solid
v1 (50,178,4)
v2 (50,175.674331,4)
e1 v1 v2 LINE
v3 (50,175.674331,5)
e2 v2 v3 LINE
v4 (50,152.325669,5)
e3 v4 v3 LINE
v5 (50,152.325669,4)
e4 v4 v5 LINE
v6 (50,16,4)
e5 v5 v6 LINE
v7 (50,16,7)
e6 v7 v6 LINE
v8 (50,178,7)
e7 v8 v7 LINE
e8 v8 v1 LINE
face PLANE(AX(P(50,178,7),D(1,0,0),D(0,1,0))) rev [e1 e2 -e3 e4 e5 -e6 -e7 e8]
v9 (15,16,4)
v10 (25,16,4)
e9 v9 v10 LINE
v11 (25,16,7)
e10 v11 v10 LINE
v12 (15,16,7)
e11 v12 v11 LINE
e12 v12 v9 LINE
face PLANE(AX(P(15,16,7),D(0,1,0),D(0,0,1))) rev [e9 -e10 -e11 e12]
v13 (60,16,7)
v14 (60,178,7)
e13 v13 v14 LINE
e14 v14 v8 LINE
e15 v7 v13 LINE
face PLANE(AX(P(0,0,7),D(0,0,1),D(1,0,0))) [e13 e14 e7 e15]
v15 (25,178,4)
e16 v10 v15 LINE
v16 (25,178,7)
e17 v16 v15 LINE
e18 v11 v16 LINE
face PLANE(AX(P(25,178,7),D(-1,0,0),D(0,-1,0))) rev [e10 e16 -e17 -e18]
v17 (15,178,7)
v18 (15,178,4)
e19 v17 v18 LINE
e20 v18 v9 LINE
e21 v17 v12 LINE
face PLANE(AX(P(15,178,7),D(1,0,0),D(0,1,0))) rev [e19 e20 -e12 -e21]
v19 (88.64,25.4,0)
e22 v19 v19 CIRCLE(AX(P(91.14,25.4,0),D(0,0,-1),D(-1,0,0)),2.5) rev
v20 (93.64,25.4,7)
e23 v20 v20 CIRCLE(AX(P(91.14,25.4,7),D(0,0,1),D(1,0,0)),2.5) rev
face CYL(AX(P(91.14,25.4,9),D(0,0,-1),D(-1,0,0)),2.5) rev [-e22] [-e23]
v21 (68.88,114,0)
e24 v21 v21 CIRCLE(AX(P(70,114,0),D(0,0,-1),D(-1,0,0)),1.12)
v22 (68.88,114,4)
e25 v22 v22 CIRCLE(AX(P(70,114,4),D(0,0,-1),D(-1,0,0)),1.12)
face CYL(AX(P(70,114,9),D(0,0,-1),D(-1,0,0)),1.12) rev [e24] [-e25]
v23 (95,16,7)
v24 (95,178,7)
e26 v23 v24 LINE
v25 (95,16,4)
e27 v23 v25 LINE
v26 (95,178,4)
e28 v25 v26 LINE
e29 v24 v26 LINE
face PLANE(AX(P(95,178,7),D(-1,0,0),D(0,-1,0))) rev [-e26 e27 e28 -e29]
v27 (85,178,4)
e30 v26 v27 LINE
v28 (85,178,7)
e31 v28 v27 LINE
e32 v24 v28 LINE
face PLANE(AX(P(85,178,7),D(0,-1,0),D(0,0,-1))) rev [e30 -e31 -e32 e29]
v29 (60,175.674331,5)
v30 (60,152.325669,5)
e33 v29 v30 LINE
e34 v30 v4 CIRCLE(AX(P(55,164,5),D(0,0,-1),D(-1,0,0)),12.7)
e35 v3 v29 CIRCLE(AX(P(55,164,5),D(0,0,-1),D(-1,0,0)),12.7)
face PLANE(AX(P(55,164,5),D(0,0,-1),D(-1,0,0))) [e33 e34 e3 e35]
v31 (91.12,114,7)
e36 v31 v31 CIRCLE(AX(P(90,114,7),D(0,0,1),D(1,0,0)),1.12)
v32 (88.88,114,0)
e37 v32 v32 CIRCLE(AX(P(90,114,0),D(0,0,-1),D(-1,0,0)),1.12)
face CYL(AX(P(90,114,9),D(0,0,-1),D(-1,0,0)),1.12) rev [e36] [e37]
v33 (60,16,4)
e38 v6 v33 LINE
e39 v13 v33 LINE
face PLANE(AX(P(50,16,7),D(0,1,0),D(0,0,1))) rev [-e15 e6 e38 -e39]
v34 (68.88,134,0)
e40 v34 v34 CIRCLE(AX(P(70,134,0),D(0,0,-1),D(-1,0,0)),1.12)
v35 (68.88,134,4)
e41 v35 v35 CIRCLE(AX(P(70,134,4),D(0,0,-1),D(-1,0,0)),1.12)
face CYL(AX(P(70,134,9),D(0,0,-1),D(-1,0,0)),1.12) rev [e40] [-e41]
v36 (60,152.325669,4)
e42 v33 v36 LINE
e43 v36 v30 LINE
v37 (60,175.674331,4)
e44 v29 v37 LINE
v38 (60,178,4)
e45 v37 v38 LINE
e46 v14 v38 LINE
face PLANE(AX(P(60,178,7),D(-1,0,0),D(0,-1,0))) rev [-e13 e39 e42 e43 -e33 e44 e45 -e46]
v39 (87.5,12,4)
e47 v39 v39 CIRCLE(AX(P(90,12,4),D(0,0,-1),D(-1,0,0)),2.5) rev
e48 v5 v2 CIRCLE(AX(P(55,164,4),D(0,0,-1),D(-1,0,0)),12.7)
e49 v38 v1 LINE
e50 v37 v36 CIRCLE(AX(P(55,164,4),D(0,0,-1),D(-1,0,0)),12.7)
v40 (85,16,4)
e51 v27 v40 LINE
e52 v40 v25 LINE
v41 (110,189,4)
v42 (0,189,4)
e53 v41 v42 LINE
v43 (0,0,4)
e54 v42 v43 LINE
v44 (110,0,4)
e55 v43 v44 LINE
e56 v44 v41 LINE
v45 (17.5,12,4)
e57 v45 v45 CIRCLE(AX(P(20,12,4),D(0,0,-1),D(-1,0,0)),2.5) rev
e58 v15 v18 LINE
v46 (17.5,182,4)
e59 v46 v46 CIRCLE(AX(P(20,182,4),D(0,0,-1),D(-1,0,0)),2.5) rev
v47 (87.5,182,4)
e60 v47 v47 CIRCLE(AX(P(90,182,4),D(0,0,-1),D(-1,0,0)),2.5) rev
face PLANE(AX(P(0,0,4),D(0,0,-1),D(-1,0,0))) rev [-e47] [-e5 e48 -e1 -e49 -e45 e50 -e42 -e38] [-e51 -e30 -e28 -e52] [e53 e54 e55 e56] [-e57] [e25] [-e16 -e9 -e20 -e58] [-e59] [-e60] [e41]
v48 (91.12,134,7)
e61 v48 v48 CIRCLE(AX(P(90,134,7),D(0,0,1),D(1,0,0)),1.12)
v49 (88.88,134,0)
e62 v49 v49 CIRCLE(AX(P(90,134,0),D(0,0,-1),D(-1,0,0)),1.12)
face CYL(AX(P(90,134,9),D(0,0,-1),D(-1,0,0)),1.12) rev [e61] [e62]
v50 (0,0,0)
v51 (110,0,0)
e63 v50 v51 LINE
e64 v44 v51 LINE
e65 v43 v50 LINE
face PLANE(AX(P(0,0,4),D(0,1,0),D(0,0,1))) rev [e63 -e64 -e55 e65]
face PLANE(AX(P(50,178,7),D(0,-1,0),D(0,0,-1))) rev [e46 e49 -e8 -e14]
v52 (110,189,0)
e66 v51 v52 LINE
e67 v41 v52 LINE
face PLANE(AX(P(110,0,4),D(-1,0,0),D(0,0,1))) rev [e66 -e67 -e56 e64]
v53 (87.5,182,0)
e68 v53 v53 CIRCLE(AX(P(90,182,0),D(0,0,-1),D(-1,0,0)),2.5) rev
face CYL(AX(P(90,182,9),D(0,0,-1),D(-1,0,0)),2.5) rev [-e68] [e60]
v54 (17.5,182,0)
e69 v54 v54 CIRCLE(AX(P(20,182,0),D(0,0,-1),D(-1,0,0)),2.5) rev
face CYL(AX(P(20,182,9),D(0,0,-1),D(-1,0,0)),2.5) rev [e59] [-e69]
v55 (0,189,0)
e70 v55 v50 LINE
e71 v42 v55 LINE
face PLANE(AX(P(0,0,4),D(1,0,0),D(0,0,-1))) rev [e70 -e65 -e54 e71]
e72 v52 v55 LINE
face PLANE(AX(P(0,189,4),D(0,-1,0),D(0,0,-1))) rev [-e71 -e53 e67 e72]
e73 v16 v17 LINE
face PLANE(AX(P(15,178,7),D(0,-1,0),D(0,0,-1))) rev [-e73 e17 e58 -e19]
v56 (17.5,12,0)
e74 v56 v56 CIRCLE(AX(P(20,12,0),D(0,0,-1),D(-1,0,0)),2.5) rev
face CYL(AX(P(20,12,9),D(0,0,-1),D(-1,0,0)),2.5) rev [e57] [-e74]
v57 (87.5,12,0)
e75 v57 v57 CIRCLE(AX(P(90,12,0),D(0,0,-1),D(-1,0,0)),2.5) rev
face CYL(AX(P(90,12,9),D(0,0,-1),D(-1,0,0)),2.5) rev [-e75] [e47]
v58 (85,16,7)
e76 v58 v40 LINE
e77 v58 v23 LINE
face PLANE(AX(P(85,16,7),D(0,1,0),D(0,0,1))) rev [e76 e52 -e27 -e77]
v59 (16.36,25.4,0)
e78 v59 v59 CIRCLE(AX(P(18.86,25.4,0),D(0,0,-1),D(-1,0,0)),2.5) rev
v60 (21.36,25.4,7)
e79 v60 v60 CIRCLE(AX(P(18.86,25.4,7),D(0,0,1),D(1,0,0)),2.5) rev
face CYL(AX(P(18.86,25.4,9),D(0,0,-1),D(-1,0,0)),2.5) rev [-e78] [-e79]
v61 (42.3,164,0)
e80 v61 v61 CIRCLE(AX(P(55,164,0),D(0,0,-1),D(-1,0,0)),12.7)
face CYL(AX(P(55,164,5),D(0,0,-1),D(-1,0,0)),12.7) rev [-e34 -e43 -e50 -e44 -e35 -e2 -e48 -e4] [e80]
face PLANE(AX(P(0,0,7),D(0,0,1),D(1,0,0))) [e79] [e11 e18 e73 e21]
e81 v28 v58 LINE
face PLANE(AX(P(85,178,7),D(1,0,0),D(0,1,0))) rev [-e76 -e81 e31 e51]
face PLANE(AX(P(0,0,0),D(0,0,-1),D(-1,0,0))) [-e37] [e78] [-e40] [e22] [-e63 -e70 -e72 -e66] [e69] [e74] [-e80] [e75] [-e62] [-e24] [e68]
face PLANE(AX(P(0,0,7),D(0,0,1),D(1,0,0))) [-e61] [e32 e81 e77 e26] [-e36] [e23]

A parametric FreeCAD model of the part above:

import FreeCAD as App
import Part
import Sketcher
from FreeCAD import Vector
Q = App.Units.Quantity

doc = App.newDocument("Part")
body = doc.addObject("PartDesign::Body", "Body")

# Sketch on XY plane
sketch1 = doc.addObject("Sketcher::SketchObject", "Sketch")
body.addObject(sketch1)
sketch1.AttachmentSupport = (doc.XY_Plane, [""])
sketch1.MapMode = "FlatFace"
sketch1.addGeometry([
    Part.LineSegment(Vector(0, 189, 0), Vector(0, 0, 0)),
    Part.LineSegment(Vector(0, 0, 0), Vector(110, 0, 0)),
    Part.LineSegment(Vector(110, 0, 0), Vector(110, 189, 0)),
    Part.LineSegment(Vector(110, 189, 0), Vector(0, 189, 0)),
], False)
sketch1.addConstraint([
    Sketcher.Constraint("Coincident", 0, 2, 1, 1),
    Sketcher.Constraint("Coincident", 1, 2, 2, 1),
    Sketcher.Constraint("Coincident", 2, 2, 3, 1),
    Sketcher.Constraint("Coincident", 3, 2, 0, 1),
    Sketcher.Constraint("Vertical", 0),
    Sketcher.Constraint("Horizontal", 1),
    Sketcher.Constraint("Vertical", 2),
    Sketcher.Constraint("Horizontal", 3),
    Sketcher.Constraint("Coincident", 0, 2, -1, 1),
    Sketcher.Constraint("DistanceX", 1, 1, 1, 2, Q("110 mm")),
    Sketcher.Constraint("DistanceY", 0, 2, 0, 1, Q("189 mm")),
])
pad1 = doc.addObject("PartDesign::Pad", "Pad")
body.addObject(pad1)
pad1.Profile = sketch1
pad1.Length = 4

# Sketch on XY plane
sketch2 = doc.addObject("Sketcher::SketchObject", "Sketch001")
body.addObject(sketch2)
sketch2.AttachmentSupport = (doc.XY_Plane, [""])
sketch2.MapMode = "FlatFace"
sketch2.AttachmentOffset = App.Placement(Vector(0, 0, 4), App.Rotation())
sketch2.addGeometry([
    Part.LineSegment(Vector(50, 178, 0), Vector(50, 16, 0)),  # 0
    Part.LineSegment(Vector(50, 16, 0), Vector(60, 16, 0)),  # 1
    Part.LineSegment(Vector(60, 16, 0), Vector(60, 178, 0)),  # 2
    Part.LineSegment(Vector(60, 178, 0), Vector(50, 178, 0)),  # 3
    Part.LineSegment(Vector(15, 178, 0), Vector(15, 16, 0)),  # 4
    Part.LineSegment(Vector(15, 16, 0), Vector(25, 16, 0)),  # 5
    Part.LineSegment(Vector(25, 16, 0), Vector(25, 178, 0)),  # 6
    Part.LineSegment(Vector(25, 178, 0), Vector(15, 178, 0)),  # 7
    Part.LineSegment(Vector(85, 178, 0), Vector(85, 16, 0)),  # 8
    Part.LineSegment(Vector(85, 16, 0), Vector(95, 16, 0)),  # 9
    Part.LineSegment(Vector(95, 16, 0), Vector(95, 178, 0)),  # 10
    Part.LineSegment(Vector(95, 178, 0), Vector(85, 178, 0)),  # 11
], False)
sketch2.addConstraint([
    Sketcher.Constraint("Coincident", 0, 2, 1, 1),
    Sketcher.Constraint("Coincident", 1, 2, 2, 1),
    Sketcher.Constraint("Coincident", 2, 2, 3, 1),
    Sketcher.Constraint("Coincident", 3, 2, 0, 1),
    Sketcher.Constraint("Coincident", 4, 2, 5, 1),
    Sketcher.Constraint("Coincident", 5, 2, 6, 1),
    Sketcher.Constraint("Coincident", 6, 2, 7, 1),
    Sketcher.Constraint("Coincident", 7, 2, 4, 1),
    Sketcher.Constraint("Coincident", 8, 2, 9, 1),
    Sketcher.Constraint("Coincident", 9, 2, 10, 1),
    Sketcher.Constraint("Coincident", 10, 2, 11, 1),
    Sketcher.Constraint("Coincident", 11, 2, 8, 1),
    Sketcher.Constraint("Vertical", 0),
    Sketcher.Constraint("Horizontal", 1),
    Sketcher.Constraint("Vertical", 2),
    Sketcher.Constraint("Horizontal", 3),
    Sketcher.Constraint("Vertical", 4),
    Sketcher.Constraint("Horizontal", 5),
    Sketcher.Constraint("Vertical", 6),
    Sketcher.Constraint("Horizontal", 7),
    Sketcher.Constraint("Vertical", 8),
    Sketcher.Constraint("Horizontal", 9),
    Sketcher.Constraint("Vertical", 10),
    Sketcher.Constraint("Horizontal", 11),
    Sketcher.Constraint("Horizontal", 1, 2, 4, 2),
    Sketcher.Constraint("Horizontal", 3, 2, 6, 2),
    Sketcher.Constraint("Horizontal", 5, 2, 8, 2),
    Sketcher.Constraint("Horizontal", 7, 2, 10, 2),
    Sketcher.Constraint("Equal", 3, 5),
    Sketcher.Constraint("Equal", 7, 9),
    Sketcher.Constraint("DistanceX", 1, 1, 1, 2, Q("10 mm")),
    Sketcher.Constraint("DistanceY", 0, 2, 0, 1, Q("162 mm")),
    Sketcher.Constraint("DistanceX", -1, 1, 0, 2, Q("50 mm")),
    Sketcher.Constraint("DistanceY", -1, 1, 0, 2, Q("16 mm")),
    Sketcher.Constraint("DistanceX", -1, 1, 4, 2, Q("15 mm")),
    Sketcher.Constraint("DistanceX", -1, 1, 8, 2, Q("85 mm")),
])
pad2 = doc.addObject("PartDesign::Pad", "Pad001")
body.addObject(pad2)
pad2.Profile = sketch2
pad2.Length = 3

# Sketch on XY plane
sketch3 = doc.addObject("Sketcher::SketchObject", "Sketch002")
body.addObject(sketch3)
sketch3.AttachmentSupport = (doc.XY_Plane, [""])
sketch3.MapMode = "FlatFace"
sketch3.AttachmentOffset = App.Placement(Vector(0, 0, 4), App.Rotation())
sketch3.addGeometry([
    Part.Circle(Vector(20, 12, 0), Vector(0, 0, 1), 2.5),  # 0
    Part.Circle(Vector(90, 12, 0), Vector(0, 0, 1), 2.5),  # 1
    Part.Circle(Vector(18.9, 25.4, 0), Vector(0, 0, 1), 2.5),  # 2
    Part.Circle(Vector(91.1, 25.4, 0), Vector(0, 0, 1), 2.5),  # 3
    Part.Circle(Vector(20, 182, 0), Vector(0, 0, 1), 2.5),  # 4
    Part.Circle(Vector(90, 182, 0), Vector(0, 0, 1), 2.5),  # 5
    Part.Circle(Vector(70, 134, 0), Vector(0, 0, 1), 1.1),  # 6
    Part.Circle(Vector(90, 134, 0), Vector(0, 0, 1), 1.1),  # 7
    Part.Circle(Vector(90, 114, 0), Vector(0, 0, 1), 1.1),  # 8
    Part.Circle(Vector(70, 114, 0), Vector(0, 0, 1), 1.1),  # 9
], False)
sketch3.addConstraint([
    Sketcher.Constraint("Equal", 0, 1),
    Sketcher.Constraint("Equal", 1, 2),
    Sketcher.Constraint("Equal", 2, 3),
    Sketcher.Constraint("Equal", 3, 4),
    Sketcher.Constraint("Equal", 4, 5),
    Sketcher.Constraint("Equal", 6, 7),
    Sketcher.Constraint("Equal", 7, 8),
    Sketcher.Constraint("Equal", 8, 9),
    Sketcher.Constraint("Horizontal", 0, 3, 1, 3),
    Sketcher.Constraint("Horizontal", 2, 3, 3, 3),
    Sketcher.Constraint("Horizontal", 4, 3, 5, 3),
    Sketcher.Constraint("Horizontal", 6, 3, 7, 3),
    Sketcher.Constraint("Horizontal", 8, 3, 9, 3),
    Sketcher.Constraint("Vertical", 0, 3, 4, 3),
    Sketcher.Constraint("Vertical", 1, 3, 5, 3),
    Sketcher.Constraint("Vertical", 5, 3, 7, 3),
    Sketcher.Constraint("Vertical", 7, 3, 8, 3),
    Sketcher.Constraint("Vertical", 6, 3, 9, 3),
    Sketcher.Constraint("Diameter", 0, Q("5 mm")),
    Sketcher.Constraint("Diameter", 6, Q("2.24 mm")),
    Sketcher.Constraint("DistanceX", -1, 1, 0, 3, Q("20 mm")),
    Sketcher.Constraint("DistanceY", -1, 1, 0, 3, Q("12 mm")),
    Sketcher.Constraint("DistanceX", -1, 1, 1, 3, Q("90 mm")),
    Sketcher.Constraint("DistanceY", -1, 1, 4, 3, Q("182 mm")),
    Sketcher.Constraint("DistanceX", -1, 1, 6, 3, Q("70 mm")),
    Sketcher.Constraint("DistanceY", -1, 1, 6, 3, Q("134 mm")),
    Sketcher.Constraint("DistanceY", -1, 1, 8, 3, Q("114 mm")),
    Sketcher.Constraint("DistanceY", -1, 1, 2, 3, Q("25.4 mm")),
    Sketcher.Constraint("DistanceX", -1, 1, 2, 3, Q("18.86 mm")),
    Sketcher.Constraint("DistanceX", -1, 1, 3, 3, Q("91.14 mm")),
])
pocket1 = doc.addObject("PartDesign::Pocket", "Pocket")
body.addObject(pocket1)
pocket1.Profile = sketch3
pocket1.Type = "ThroughAll"
pocket1.Midplane = True

# Sketch on XY plane
sketch4 = doc.addObject("Sketcher::SketchObject", "Sketch003")
body.addObject(sketch4)
sketch4.AttachmentSupport = (doc.XY_Plane, [""])
sketch4.MapMode = "FlatFace"
sketch4.addGeometry(Part.Circle(Vector(55, 164, 0), Vector(0, 0, 1), 13), False)
sketch4.addConstraint([
    Sketcher.Constraint("Diameter", 0, Q("25.4 mm")),
    Sketcher.Constraint("DistanceX", -1, 1, 0, 3, Q("55 mm")),
    Sketcher.Constraint("DistanceY", -1, 1, 0, 3, Q("164 mm")),
])
pocket2 = doc.addObject("PartDesign::Pocket", "Pocket001")
body.addObject(pocket2)
pocket2.Profile = sketch4
pocket2.Length = 5
pocket2.Reversed = True

doc.recompute()
